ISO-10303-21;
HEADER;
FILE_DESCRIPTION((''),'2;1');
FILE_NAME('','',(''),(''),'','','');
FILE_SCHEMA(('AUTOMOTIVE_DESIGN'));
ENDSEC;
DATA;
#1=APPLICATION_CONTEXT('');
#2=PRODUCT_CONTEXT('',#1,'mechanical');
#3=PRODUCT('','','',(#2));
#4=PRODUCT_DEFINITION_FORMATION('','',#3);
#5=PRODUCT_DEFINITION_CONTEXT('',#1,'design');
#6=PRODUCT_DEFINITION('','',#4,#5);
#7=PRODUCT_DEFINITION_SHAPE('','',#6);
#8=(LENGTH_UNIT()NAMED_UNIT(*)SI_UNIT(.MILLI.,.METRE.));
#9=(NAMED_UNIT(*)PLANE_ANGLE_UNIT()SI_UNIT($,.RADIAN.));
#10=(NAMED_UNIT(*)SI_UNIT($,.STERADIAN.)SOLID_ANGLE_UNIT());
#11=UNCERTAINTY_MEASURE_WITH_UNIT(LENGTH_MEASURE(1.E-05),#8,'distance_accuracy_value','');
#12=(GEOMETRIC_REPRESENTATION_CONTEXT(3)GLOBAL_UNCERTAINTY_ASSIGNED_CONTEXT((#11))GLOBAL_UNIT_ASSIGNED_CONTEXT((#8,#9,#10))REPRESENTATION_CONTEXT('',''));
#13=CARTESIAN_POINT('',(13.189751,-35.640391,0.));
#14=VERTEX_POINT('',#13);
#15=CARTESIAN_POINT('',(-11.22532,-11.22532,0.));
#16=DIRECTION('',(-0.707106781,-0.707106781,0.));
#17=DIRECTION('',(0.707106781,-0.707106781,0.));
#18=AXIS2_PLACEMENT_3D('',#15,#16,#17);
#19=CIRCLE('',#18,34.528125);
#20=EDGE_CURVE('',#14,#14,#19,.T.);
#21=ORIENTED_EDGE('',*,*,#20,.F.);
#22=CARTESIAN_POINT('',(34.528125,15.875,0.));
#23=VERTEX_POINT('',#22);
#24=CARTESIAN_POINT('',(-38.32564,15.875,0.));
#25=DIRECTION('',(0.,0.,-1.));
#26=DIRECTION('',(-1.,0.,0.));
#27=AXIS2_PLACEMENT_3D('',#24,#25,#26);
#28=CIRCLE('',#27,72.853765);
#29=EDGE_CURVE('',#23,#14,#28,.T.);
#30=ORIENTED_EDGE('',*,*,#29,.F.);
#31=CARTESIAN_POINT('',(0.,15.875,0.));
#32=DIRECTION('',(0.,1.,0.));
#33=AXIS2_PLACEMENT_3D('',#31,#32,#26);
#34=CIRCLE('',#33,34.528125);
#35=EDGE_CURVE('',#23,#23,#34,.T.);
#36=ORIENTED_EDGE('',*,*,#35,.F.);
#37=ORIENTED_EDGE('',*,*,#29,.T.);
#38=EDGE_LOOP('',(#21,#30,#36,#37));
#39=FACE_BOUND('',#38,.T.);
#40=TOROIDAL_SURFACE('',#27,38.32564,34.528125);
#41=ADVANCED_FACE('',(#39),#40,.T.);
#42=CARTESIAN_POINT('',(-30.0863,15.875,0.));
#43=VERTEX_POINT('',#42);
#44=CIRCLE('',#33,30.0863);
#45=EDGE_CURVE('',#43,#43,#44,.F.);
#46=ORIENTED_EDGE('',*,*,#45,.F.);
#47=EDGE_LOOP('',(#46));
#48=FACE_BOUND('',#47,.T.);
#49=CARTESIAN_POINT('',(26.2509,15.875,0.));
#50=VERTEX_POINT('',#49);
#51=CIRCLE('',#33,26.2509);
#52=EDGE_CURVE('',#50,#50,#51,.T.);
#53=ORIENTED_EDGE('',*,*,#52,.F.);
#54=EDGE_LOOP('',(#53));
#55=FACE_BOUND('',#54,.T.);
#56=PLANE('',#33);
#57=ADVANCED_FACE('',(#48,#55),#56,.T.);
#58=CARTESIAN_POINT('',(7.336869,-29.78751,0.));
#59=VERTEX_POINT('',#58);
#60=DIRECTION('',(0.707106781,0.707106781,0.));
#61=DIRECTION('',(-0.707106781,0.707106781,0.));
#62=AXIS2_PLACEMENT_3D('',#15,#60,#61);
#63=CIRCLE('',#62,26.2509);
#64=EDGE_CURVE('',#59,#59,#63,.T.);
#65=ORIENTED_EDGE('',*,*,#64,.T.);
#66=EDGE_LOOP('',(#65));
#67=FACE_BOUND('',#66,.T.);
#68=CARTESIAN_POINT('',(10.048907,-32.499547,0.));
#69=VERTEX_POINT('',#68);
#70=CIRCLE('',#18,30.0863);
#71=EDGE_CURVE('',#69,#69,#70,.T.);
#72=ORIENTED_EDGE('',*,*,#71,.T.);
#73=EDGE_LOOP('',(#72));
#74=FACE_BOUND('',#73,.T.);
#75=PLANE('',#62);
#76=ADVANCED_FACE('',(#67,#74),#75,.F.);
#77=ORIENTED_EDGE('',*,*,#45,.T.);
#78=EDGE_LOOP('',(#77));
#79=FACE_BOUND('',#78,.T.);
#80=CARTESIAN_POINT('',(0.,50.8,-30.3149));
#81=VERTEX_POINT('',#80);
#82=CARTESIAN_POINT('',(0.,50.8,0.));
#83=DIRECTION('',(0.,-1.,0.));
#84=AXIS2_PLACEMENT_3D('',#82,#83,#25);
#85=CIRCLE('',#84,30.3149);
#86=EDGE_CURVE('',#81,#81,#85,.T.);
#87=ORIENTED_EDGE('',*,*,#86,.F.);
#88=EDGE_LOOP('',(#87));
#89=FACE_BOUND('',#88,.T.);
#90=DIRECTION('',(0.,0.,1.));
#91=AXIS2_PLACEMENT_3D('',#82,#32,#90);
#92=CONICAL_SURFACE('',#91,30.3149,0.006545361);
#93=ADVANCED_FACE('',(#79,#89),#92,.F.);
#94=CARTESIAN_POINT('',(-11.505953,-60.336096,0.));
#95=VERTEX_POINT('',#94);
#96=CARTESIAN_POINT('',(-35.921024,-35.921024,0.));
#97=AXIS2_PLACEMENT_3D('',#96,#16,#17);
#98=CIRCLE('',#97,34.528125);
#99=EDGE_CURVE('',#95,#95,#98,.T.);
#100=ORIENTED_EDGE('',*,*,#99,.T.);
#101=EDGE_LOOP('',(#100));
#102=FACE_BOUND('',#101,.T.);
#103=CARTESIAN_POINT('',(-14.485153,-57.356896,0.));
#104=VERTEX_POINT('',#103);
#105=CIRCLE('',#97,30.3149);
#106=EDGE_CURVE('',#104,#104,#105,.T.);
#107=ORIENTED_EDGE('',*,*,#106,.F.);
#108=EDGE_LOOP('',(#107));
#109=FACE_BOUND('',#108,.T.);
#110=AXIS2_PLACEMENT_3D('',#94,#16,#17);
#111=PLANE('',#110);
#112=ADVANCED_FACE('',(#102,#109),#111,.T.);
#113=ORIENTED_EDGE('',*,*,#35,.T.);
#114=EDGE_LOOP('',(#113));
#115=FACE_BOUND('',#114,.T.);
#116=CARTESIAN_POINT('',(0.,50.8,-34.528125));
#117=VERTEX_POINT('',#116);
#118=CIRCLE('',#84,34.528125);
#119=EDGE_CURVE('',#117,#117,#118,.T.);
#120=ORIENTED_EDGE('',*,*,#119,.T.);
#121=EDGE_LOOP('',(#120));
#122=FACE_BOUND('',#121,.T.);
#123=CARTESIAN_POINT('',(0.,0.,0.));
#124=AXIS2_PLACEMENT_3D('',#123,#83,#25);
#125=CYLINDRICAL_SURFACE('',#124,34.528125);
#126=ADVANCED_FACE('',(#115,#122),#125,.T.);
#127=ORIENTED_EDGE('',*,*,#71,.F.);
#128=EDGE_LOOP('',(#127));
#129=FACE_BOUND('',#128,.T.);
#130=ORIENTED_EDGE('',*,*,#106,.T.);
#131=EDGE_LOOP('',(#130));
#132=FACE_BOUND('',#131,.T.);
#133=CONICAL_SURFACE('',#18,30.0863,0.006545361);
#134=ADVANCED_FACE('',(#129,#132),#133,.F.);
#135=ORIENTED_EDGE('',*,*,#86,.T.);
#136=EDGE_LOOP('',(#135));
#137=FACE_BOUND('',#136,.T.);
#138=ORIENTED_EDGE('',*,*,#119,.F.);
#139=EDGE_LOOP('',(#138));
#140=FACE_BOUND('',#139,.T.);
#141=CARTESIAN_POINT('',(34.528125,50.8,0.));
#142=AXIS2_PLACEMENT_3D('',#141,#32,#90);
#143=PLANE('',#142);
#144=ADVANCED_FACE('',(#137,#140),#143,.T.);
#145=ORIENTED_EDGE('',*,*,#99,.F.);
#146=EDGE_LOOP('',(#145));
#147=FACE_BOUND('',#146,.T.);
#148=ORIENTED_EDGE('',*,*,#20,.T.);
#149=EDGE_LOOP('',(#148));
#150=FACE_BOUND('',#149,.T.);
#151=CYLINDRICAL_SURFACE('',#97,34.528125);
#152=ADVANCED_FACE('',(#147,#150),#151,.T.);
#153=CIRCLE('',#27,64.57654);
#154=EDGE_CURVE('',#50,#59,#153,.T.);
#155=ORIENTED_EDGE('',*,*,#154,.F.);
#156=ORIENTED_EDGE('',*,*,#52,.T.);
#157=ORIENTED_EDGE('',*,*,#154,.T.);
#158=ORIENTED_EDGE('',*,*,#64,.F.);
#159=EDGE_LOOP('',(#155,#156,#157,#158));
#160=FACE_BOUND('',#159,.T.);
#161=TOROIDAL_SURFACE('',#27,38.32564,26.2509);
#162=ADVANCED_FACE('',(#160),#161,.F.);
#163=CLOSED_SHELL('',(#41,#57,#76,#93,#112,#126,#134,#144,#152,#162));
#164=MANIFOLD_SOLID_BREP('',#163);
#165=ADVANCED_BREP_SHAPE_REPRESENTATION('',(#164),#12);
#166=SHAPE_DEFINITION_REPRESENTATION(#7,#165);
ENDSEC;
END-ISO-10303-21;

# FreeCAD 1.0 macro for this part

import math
import FreeCAD as App
import Part
import Sketcher
from FreeCAD import Vector
Q = App.Units.Quantity


def add_polygon(sketch, points):
    """Adds a closed chain of lines whose ends are joined by coincident constraints."""
    first, n = sketch.GeometryCount, len(points)
    for a, b in zip(points, points[1:] + points[:1]):
        sketch.addGeometry(Part.LineSegment(App.Vector(*a, 0), App.Vector(*b, 0)), False)
    for i in range(n):
        sketch.addConstraint(Sketcher.Constraint("Coincident", first + i, 2, first + (i + 1) % n, 1))

doc = App.newDocument("Part")
body = doc.addObject("PartDesign::Body", "Body")

sketch1 = body.newObject("Sketcher::SketchObject", "Sketch")
sketch1.AttachmentSupport = (doc.getObject("XY_Plane"), [""])
sketch1.MapMode = "FlatFace"
add_polygon(sketch1, [(-11.505953, -60.336096), (13.189751, -35.640391), (10.048907, -32.499547), (-14.485153, -57.356896)])
sketch1.addGeometry(Part.LineSegment(Vector(-35.921024, -35.921024, 0), Vector(-11.22532, -11.22532, 0)), True)
sketch1.addConstraint(Sketcher.Constraint("Distance", 0, Q("1.375 in")))
sketch1.addConstraint(Sketcher.Constraint("Distance", 4, Q("1.375 in")))
sketch1.addConstraint(Sketcher.Constraint("DistanceX", 2, 2, 3, 2, Q("2.9792 mm")))
sketch1.addConstraint(Sketcher.Constraint("DistanceY", 3, 2, 2, 2, Q("2.9792 mm")))
sketch1.addConstraint(Sketcher.Constraint("Distance", 2, Q("34.925748 mm")))
sketch1.addConstraint(Sketcher.Constraint("DistanceX", -1, 1, 0, 2, Q("13.189751 mm")))
sketch1.addConstraint(Sketcher.Constraint("DistanceY", 0, 2, -1, 1, Q("35.640391 mm")))
sketch1.addConstraint(Sketcher.Constraint("DistanceX", 4, 2, -1, 1, Q("11.22532 mm")))
sketch1.addConstraint(Sketcher.Constraint("DistanceY", 4, 2, -1, 1, Q("11.22532 mm")))
sketch1.addConstraint(Sketcher.Constraint("DistanceX", 2, 2, 1, 2, Q("24.53406 mm")))
sketch1.addConstraint(Sketcher.Constraint("DistanceX", 4, 1, 2, 2, Q("21.435871 mm")))
sketch1.addConstraint(Sketcher.Constraint("Distance", 1, Q("4.441825 mm")))
revolution = body.newObject("PartDesign::Revolution", "Revolution")
revolution.Profile = sketch1
revolution.ReferenceAxis = (sketch1, ["Axis0"])
revolution.Angle = 360
body2 = doc.addObject("PartDesign::Body", "Body001")

sketch2 = body2.newObject("Sketcher::SketchObject", "Sketch001")
sketch2.AttachmentSupport = (doc.getObject("XY_Plane001"), [""])
sketch2.MapMode = "FlatFace"
add_polygon(sketch2, [(30.3, 50.8), (30.1, 15.9), (34.5, 15.9), (34.5, 50.8)])
sketch2.addConstraint(Sketcher.Constraint("Horizontal", 1))
sketch2.addConstraint(Sketcher.Constraint("Vertical", 2))
sketch2.addConstraint(Sketcher.Constraint("Horizontal", 3))
sketch2.addConstraint(Sketcher.Constraint("DistanceY", -1, 1, 2, 2, Q("2 in")))
sketch2.addConstraint(Sketcher.Constraint("DistanceY", 2, 1, 2, 2, Q("1.375 in")))
sketch2.addConstraint(Sketcher.Constraint("DistanceX", -1, 1, 1, 2, Q("1.359375 in")))
sketch2.addConstraint(Sketcher.Constraint("DistanceX", 0, 2, 3, 2, Q("0.009 in")))
sketch2.addConstraint(Sketcher.Constraint("DistanceX", -1, 1, 0, 2, Q("1.1845 in")))
revolution2 = body2.newObject("PartDesign::Revolution", "Revolution001")
revolution2.Profile = sketch2
revolution2.ReferenceAxis = (sketch2, ["V_Axis"])
revolution2.Angle = 360
body.AllowCompound = True
doc.recompute()

boolean = body.newObject("PartDesign::Boolean", "Boolean")
boolean.Type = "Fuse"
boolean.addObjects([body2])

sketch3 = body.newObject("Sketcher::SketchObject", "Sketch002")
sketch3.Placement = App.Placement(Vector(-11.22532, -11.22532, 0), App.Rotation(Vector(0, 0, -1), Vector(-0.707106781, 0.707106781, 0), Vector(0.707106781, 0.707106781, 0), "ZXY"))
sketch3.addGeometry(Part.Circle(Vector(0, 0, 0), Vector(0, 0, 1), 35), False)
sketch3.addGeometry(Part.Circle(Vector(0, 0, 0), Vector(0, 0, 1), 26), False)
sketch3.addConstraint(Sketcher.Constraint("Coincident", 0, 3, -1, 1))
sketch3.addConstraint(Sketcher.Constraint("Coincident", 1, 3, -1, 1))
sketch3.addConstraint(Sketcher.Constraint("Diameter", 0, Q("2.71875 in")))
sketch3.addConstraint(Sketcher.Constraint("Diameter", 1, Q("2.067 in")))

sketch4 = body.newObject("Sketcher::SketchObject", "Sketch003")
sketch4.AttachmentSupport = (doc.getObject("XY_Plane"), [""])
sketch4.MapMode = "FlatFace"
sketch4.addGeometry(Part.ArcOfCircle(Part.Circle(Vector(-38, 16, 0), Vector(0, 0, 1), 38), math.radians(-45), math.radians(0)), False)
sketch4.addConstraint(Sketcher.Constraint("PointOnObject", 0, 2, -2))
sketch4.addConstraint(Sketcher.Constraint("DistanceY", -1, 1, 0, 3, Q("0.625 in")))
sketch4.addConstraint(Sketcher.Constraint("DistanceY", -1, 1, 0, 2, Q("0.625 in")))
sketch4.addConstraint(Sketcher.Constraint("Radius", 0, Q("38.32564 mm")))
sketch4.addConstraint(Sketcher.Constraint("DistanceX", 0, 1, -1, 1, Q("11.22532 mm")))
doc.recompute()

additivepipe = body.newObject("PartDesign::AdditivePipe", "AdditivePipe")
additivepipe.Profile = sketch3
additivepipe.Spine = (sketch4, ["Edge1"])

doc.recompute()
